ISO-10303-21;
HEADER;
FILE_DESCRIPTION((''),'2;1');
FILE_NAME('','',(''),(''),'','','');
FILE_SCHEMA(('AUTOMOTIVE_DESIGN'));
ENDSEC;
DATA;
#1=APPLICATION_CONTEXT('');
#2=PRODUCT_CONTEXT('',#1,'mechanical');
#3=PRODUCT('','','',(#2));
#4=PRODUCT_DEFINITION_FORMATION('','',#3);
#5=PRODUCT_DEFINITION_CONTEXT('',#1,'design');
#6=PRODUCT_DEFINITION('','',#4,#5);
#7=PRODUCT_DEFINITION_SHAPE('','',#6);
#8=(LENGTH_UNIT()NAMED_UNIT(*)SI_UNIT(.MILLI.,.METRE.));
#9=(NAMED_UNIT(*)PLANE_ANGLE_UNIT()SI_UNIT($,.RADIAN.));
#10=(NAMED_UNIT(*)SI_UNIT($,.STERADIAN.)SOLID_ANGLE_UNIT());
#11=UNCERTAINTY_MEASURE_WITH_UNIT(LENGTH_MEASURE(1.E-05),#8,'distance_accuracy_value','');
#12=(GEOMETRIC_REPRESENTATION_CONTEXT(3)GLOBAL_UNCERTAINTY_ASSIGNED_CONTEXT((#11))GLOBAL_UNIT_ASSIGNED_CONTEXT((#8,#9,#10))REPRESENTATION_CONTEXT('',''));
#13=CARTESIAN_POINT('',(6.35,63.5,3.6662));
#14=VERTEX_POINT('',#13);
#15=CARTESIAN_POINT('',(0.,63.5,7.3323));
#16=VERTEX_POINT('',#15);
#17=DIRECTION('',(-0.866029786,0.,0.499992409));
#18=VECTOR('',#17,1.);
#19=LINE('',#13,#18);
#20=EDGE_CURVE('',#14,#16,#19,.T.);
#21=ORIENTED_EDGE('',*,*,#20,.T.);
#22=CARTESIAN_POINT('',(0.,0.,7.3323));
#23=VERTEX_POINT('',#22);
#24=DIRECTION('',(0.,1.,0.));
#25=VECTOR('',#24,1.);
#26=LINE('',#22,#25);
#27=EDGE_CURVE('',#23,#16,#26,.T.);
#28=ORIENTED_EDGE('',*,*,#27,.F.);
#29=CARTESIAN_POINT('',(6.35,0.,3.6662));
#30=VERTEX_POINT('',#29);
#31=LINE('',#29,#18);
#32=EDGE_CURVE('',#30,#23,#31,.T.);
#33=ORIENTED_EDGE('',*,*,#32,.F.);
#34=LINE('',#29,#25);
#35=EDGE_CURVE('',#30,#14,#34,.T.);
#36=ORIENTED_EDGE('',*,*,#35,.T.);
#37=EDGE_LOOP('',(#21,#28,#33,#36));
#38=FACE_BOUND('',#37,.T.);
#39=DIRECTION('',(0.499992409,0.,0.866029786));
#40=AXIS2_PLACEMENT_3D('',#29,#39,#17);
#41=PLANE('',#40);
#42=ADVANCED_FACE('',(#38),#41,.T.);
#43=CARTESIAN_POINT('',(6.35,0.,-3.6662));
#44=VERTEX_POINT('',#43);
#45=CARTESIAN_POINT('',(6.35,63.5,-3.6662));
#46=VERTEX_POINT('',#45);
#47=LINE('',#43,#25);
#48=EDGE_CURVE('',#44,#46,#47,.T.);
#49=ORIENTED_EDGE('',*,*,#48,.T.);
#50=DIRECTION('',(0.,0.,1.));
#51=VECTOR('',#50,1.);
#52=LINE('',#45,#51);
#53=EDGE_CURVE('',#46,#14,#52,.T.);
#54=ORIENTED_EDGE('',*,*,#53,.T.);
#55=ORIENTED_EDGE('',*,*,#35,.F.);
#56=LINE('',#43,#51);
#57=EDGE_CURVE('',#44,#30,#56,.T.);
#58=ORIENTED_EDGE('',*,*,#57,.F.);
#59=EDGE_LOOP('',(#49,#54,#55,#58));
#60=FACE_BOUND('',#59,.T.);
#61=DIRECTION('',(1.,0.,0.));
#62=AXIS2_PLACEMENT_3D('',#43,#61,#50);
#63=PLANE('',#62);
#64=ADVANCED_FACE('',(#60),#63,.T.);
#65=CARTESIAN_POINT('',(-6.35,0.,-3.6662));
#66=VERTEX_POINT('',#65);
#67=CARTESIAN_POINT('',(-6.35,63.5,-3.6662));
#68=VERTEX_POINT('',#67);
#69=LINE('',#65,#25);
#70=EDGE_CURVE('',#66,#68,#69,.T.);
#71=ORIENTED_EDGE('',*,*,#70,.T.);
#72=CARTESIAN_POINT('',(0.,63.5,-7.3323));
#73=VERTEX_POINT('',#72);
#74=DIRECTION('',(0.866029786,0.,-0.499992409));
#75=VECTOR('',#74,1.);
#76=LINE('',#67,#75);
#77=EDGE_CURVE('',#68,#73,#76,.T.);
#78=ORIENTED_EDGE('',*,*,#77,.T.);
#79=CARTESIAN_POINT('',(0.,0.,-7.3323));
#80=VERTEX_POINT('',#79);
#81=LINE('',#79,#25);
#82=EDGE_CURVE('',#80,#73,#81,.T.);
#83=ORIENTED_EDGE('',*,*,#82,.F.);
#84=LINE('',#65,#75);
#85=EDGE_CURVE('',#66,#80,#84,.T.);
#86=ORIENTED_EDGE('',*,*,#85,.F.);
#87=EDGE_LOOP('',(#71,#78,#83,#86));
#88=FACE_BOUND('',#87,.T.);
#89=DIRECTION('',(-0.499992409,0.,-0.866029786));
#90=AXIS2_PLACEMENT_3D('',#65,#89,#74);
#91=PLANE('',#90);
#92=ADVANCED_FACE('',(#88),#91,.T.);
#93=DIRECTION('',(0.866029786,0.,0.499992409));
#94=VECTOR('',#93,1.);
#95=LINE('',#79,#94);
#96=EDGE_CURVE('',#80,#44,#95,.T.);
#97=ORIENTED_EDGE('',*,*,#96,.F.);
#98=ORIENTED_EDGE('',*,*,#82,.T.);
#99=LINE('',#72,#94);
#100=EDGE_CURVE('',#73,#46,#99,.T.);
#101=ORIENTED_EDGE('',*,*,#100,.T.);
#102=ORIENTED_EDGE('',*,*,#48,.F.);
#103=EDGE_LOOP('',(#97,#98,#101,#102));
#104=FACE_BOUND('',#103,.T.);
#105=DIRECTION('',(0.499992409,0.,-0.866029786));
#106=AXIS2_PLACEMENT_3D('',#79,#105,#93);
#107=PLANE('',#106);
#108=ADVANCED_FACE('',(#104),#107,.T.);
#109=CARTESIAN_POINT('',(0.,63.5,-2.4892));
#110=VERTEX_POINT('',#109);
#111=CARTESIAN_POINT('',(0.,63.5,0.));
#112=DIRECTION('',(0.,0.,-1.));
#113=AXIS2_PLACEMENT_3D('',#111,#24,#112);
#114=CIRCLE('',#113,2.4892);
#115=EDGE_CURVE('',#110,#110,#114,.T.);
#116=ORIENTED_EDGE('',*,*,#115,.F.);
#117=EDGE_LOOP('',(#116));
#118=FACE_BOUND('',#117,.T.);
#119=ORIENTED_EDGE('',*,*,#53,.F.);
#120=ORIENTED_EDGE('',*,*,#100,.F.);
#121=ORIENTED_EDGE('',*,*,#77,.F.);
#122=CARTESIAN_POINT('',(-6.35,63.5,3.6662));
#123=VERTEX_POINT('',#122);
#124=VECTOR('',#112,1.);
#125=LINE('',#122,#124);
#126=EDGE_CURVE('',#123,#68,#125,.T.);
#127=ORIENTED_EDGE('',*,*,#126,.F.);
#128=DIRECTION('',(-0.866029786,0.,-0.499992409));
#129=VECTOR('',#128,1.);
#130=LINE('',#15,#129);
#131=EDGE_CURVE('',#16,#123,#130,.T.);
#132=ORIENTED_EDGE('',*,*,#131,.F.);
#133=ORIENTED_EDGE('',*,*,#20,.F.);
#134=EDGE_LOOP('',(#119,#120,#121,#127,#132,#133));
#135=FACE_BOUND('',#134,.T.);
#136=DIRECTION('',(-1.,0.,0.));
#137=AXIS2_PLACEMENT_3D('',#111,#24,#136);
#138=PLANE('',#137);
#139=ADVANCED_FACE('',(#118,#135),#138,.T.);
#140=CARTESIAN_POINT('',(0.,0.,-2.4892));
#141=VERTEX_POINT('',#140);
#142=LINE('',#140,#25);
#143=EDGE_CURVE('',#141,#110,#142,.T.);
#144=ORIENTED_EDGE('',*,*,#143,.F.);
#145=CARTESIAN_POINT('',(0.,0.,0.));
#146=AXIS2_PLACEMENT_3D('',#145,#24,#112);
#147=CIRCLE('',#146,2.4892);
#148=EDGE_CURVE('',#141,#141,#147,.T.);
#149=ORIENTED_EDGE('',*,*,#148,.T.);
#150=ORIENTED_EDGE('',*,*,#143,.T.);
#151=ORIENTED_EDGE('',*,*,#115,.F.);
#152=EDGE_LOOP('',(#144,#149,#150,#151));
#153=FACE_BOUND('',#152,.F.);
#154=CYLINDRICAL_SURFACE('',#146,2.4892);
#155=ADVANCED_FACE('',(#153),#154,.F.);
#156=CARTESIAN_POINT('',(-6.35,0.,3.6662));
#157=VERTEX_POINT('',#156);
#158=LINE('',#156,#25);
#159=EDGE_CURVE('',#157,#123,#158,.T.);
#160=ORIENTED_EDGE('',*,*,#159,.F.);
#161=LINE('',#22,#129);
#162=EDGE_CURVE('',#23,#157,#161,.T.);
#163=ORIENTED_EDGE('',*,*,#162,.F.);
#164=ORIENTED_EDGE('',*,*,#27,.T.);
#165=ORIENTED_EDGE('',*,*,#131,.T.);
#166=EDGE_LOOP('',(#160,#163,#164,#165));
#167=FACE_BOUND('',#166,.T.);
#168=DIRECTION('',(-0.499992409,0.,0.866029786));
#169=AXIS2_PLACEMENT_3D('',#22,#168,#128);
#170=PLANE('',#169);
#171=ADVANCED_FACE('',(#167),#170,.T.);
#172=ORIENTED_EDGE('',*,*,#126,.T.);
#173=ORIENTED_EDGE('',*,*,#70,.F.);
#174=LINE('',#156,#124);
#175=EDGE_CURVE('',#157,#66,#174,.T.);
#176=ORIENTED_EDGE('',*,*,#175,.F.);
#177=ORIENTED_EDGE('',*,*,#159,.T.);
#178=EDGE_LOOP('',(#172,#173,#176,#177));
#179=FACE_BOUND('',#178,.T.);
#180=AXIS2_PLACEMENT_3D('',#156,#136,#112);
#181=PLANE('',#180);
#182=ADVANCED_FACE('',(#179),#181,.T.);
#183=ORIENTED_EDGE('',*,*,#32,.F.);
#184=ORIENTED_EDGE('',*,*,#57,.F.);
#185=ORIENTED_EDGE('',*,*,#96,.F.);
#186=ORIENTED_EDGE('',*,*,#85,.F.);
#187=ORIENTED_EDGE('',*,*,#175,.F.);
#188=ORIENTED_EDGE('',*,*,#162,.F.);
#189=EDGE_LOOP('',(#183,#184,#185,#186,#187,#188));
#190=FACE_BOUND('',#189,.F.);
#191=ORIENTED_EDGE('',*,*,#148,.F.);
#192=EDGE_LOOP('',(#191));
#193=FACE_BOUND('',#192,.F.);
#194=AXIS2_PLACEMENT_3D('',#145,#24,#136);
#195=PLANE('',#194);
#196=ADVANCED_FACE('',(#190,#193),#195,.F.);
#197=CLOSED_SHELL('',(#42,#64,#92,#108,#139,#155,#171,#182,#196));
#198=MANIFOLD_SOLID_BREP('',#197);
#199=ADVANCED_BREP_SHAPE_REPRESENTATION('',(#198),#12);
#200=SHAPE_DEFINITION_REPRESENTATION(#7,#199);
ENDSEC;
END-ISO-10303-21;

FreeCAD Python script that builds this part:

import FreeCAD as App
import Part
import Sketcher

V = App.Vector
Q = App.Units.Quantity


def add_polygon(sketch, points):
    """Adds a closed chain of lines whose ends are joined by coincident constraints."""
    first, n = sketch.GeometryCount, len(points)
    for a, b in zip(points, points[1:] + points[:1]):
        sketch.addGeometry(Part.LineSegment(App.Vector(*a, 0), App.Vector(*b, 0)), False)
    for i in range(n):
        sketch.addConstraint(Sketcher.Constraint("Coincident", first + i, 2, first + (i + 1) % n, 1))

doc = App.newDocument("Part")
body = doc.addObject("PartDesign::Body", "Body")

# Sketch on XZ plane
sketch1 = body.newObject("Sketcher::SketchObject", "Sketch")
sketch1.AttachmentSupport = (doc.getObject("XZ_Plane"), [""])
sketch1.MapMode = "FlatFace"
add_polygon(sketch1, [(0, -7), (-6, -4), (-6, 4), (0, 7), (6, 4), (6, -4)])  # lines 0-5
sketch1.addConstraint([
    Sketcher.Constraint("Vertical", 1),
    Sketcher.Constraint("Vertical", 4),
    Sketcher.Constraint("Symmetric", 0, 2, 3, 2, -1, 1),
    Sketcher.Constraint("Symmetric", 2, 2, 5, 2, -1, 1),
    Sketcher.Constraint("PointOnObject", 2, 2, -2),
    Sketcher.Constraint("Parallel", 2, 5),
    Sketcher.Constraint("Horizontal", 1, 2, 3, 2),
    Sketcher.Constraint("DistanceX", 1, 2, 3, 2, Q("0.5 in")),
    Sketcher.Constraint("Angle", 0, Q("150.0005 deg")),
    Sketcher.Constraint("DistanceY", 0, 2, 2, 2, Q("0.433 in")),
])
pad1 = body.newObject("PartDesign::Pad", "Pad")
pad1.Profile = sketch1
pad1.Length = Q("2.5 in")
pad1.Reversed = True

# Sketch on XZ plane
sketch2 = body.newObject("Sketcher::SketchObject", "Sketch001")
sketch2.AttachmentSupport = (doc.getObject("XZ_Plane"), [""])
sketch2.MapMode = "FlatFace"
sketch2.addGeometry(Part.Circle(V(0, 0, 0), V(0, 0, 1), 2.5), False)
sketch2.addConstraint([
    Sketcher.Constraint("Coincident", 0, 3, -1, 1),
    Sketcher.Constraint("Diameter", 0, Q("0.196 in")),
])
doc.recompute()
hole = body.newObject("PartDesign::Hole", "Hole")
hole.Profile = sketch2
hole.ThreadType = "None"
hole.Diameter = Q("0.196 in")
hole.DepthType = "ThroughAll"

doc.recompute()
